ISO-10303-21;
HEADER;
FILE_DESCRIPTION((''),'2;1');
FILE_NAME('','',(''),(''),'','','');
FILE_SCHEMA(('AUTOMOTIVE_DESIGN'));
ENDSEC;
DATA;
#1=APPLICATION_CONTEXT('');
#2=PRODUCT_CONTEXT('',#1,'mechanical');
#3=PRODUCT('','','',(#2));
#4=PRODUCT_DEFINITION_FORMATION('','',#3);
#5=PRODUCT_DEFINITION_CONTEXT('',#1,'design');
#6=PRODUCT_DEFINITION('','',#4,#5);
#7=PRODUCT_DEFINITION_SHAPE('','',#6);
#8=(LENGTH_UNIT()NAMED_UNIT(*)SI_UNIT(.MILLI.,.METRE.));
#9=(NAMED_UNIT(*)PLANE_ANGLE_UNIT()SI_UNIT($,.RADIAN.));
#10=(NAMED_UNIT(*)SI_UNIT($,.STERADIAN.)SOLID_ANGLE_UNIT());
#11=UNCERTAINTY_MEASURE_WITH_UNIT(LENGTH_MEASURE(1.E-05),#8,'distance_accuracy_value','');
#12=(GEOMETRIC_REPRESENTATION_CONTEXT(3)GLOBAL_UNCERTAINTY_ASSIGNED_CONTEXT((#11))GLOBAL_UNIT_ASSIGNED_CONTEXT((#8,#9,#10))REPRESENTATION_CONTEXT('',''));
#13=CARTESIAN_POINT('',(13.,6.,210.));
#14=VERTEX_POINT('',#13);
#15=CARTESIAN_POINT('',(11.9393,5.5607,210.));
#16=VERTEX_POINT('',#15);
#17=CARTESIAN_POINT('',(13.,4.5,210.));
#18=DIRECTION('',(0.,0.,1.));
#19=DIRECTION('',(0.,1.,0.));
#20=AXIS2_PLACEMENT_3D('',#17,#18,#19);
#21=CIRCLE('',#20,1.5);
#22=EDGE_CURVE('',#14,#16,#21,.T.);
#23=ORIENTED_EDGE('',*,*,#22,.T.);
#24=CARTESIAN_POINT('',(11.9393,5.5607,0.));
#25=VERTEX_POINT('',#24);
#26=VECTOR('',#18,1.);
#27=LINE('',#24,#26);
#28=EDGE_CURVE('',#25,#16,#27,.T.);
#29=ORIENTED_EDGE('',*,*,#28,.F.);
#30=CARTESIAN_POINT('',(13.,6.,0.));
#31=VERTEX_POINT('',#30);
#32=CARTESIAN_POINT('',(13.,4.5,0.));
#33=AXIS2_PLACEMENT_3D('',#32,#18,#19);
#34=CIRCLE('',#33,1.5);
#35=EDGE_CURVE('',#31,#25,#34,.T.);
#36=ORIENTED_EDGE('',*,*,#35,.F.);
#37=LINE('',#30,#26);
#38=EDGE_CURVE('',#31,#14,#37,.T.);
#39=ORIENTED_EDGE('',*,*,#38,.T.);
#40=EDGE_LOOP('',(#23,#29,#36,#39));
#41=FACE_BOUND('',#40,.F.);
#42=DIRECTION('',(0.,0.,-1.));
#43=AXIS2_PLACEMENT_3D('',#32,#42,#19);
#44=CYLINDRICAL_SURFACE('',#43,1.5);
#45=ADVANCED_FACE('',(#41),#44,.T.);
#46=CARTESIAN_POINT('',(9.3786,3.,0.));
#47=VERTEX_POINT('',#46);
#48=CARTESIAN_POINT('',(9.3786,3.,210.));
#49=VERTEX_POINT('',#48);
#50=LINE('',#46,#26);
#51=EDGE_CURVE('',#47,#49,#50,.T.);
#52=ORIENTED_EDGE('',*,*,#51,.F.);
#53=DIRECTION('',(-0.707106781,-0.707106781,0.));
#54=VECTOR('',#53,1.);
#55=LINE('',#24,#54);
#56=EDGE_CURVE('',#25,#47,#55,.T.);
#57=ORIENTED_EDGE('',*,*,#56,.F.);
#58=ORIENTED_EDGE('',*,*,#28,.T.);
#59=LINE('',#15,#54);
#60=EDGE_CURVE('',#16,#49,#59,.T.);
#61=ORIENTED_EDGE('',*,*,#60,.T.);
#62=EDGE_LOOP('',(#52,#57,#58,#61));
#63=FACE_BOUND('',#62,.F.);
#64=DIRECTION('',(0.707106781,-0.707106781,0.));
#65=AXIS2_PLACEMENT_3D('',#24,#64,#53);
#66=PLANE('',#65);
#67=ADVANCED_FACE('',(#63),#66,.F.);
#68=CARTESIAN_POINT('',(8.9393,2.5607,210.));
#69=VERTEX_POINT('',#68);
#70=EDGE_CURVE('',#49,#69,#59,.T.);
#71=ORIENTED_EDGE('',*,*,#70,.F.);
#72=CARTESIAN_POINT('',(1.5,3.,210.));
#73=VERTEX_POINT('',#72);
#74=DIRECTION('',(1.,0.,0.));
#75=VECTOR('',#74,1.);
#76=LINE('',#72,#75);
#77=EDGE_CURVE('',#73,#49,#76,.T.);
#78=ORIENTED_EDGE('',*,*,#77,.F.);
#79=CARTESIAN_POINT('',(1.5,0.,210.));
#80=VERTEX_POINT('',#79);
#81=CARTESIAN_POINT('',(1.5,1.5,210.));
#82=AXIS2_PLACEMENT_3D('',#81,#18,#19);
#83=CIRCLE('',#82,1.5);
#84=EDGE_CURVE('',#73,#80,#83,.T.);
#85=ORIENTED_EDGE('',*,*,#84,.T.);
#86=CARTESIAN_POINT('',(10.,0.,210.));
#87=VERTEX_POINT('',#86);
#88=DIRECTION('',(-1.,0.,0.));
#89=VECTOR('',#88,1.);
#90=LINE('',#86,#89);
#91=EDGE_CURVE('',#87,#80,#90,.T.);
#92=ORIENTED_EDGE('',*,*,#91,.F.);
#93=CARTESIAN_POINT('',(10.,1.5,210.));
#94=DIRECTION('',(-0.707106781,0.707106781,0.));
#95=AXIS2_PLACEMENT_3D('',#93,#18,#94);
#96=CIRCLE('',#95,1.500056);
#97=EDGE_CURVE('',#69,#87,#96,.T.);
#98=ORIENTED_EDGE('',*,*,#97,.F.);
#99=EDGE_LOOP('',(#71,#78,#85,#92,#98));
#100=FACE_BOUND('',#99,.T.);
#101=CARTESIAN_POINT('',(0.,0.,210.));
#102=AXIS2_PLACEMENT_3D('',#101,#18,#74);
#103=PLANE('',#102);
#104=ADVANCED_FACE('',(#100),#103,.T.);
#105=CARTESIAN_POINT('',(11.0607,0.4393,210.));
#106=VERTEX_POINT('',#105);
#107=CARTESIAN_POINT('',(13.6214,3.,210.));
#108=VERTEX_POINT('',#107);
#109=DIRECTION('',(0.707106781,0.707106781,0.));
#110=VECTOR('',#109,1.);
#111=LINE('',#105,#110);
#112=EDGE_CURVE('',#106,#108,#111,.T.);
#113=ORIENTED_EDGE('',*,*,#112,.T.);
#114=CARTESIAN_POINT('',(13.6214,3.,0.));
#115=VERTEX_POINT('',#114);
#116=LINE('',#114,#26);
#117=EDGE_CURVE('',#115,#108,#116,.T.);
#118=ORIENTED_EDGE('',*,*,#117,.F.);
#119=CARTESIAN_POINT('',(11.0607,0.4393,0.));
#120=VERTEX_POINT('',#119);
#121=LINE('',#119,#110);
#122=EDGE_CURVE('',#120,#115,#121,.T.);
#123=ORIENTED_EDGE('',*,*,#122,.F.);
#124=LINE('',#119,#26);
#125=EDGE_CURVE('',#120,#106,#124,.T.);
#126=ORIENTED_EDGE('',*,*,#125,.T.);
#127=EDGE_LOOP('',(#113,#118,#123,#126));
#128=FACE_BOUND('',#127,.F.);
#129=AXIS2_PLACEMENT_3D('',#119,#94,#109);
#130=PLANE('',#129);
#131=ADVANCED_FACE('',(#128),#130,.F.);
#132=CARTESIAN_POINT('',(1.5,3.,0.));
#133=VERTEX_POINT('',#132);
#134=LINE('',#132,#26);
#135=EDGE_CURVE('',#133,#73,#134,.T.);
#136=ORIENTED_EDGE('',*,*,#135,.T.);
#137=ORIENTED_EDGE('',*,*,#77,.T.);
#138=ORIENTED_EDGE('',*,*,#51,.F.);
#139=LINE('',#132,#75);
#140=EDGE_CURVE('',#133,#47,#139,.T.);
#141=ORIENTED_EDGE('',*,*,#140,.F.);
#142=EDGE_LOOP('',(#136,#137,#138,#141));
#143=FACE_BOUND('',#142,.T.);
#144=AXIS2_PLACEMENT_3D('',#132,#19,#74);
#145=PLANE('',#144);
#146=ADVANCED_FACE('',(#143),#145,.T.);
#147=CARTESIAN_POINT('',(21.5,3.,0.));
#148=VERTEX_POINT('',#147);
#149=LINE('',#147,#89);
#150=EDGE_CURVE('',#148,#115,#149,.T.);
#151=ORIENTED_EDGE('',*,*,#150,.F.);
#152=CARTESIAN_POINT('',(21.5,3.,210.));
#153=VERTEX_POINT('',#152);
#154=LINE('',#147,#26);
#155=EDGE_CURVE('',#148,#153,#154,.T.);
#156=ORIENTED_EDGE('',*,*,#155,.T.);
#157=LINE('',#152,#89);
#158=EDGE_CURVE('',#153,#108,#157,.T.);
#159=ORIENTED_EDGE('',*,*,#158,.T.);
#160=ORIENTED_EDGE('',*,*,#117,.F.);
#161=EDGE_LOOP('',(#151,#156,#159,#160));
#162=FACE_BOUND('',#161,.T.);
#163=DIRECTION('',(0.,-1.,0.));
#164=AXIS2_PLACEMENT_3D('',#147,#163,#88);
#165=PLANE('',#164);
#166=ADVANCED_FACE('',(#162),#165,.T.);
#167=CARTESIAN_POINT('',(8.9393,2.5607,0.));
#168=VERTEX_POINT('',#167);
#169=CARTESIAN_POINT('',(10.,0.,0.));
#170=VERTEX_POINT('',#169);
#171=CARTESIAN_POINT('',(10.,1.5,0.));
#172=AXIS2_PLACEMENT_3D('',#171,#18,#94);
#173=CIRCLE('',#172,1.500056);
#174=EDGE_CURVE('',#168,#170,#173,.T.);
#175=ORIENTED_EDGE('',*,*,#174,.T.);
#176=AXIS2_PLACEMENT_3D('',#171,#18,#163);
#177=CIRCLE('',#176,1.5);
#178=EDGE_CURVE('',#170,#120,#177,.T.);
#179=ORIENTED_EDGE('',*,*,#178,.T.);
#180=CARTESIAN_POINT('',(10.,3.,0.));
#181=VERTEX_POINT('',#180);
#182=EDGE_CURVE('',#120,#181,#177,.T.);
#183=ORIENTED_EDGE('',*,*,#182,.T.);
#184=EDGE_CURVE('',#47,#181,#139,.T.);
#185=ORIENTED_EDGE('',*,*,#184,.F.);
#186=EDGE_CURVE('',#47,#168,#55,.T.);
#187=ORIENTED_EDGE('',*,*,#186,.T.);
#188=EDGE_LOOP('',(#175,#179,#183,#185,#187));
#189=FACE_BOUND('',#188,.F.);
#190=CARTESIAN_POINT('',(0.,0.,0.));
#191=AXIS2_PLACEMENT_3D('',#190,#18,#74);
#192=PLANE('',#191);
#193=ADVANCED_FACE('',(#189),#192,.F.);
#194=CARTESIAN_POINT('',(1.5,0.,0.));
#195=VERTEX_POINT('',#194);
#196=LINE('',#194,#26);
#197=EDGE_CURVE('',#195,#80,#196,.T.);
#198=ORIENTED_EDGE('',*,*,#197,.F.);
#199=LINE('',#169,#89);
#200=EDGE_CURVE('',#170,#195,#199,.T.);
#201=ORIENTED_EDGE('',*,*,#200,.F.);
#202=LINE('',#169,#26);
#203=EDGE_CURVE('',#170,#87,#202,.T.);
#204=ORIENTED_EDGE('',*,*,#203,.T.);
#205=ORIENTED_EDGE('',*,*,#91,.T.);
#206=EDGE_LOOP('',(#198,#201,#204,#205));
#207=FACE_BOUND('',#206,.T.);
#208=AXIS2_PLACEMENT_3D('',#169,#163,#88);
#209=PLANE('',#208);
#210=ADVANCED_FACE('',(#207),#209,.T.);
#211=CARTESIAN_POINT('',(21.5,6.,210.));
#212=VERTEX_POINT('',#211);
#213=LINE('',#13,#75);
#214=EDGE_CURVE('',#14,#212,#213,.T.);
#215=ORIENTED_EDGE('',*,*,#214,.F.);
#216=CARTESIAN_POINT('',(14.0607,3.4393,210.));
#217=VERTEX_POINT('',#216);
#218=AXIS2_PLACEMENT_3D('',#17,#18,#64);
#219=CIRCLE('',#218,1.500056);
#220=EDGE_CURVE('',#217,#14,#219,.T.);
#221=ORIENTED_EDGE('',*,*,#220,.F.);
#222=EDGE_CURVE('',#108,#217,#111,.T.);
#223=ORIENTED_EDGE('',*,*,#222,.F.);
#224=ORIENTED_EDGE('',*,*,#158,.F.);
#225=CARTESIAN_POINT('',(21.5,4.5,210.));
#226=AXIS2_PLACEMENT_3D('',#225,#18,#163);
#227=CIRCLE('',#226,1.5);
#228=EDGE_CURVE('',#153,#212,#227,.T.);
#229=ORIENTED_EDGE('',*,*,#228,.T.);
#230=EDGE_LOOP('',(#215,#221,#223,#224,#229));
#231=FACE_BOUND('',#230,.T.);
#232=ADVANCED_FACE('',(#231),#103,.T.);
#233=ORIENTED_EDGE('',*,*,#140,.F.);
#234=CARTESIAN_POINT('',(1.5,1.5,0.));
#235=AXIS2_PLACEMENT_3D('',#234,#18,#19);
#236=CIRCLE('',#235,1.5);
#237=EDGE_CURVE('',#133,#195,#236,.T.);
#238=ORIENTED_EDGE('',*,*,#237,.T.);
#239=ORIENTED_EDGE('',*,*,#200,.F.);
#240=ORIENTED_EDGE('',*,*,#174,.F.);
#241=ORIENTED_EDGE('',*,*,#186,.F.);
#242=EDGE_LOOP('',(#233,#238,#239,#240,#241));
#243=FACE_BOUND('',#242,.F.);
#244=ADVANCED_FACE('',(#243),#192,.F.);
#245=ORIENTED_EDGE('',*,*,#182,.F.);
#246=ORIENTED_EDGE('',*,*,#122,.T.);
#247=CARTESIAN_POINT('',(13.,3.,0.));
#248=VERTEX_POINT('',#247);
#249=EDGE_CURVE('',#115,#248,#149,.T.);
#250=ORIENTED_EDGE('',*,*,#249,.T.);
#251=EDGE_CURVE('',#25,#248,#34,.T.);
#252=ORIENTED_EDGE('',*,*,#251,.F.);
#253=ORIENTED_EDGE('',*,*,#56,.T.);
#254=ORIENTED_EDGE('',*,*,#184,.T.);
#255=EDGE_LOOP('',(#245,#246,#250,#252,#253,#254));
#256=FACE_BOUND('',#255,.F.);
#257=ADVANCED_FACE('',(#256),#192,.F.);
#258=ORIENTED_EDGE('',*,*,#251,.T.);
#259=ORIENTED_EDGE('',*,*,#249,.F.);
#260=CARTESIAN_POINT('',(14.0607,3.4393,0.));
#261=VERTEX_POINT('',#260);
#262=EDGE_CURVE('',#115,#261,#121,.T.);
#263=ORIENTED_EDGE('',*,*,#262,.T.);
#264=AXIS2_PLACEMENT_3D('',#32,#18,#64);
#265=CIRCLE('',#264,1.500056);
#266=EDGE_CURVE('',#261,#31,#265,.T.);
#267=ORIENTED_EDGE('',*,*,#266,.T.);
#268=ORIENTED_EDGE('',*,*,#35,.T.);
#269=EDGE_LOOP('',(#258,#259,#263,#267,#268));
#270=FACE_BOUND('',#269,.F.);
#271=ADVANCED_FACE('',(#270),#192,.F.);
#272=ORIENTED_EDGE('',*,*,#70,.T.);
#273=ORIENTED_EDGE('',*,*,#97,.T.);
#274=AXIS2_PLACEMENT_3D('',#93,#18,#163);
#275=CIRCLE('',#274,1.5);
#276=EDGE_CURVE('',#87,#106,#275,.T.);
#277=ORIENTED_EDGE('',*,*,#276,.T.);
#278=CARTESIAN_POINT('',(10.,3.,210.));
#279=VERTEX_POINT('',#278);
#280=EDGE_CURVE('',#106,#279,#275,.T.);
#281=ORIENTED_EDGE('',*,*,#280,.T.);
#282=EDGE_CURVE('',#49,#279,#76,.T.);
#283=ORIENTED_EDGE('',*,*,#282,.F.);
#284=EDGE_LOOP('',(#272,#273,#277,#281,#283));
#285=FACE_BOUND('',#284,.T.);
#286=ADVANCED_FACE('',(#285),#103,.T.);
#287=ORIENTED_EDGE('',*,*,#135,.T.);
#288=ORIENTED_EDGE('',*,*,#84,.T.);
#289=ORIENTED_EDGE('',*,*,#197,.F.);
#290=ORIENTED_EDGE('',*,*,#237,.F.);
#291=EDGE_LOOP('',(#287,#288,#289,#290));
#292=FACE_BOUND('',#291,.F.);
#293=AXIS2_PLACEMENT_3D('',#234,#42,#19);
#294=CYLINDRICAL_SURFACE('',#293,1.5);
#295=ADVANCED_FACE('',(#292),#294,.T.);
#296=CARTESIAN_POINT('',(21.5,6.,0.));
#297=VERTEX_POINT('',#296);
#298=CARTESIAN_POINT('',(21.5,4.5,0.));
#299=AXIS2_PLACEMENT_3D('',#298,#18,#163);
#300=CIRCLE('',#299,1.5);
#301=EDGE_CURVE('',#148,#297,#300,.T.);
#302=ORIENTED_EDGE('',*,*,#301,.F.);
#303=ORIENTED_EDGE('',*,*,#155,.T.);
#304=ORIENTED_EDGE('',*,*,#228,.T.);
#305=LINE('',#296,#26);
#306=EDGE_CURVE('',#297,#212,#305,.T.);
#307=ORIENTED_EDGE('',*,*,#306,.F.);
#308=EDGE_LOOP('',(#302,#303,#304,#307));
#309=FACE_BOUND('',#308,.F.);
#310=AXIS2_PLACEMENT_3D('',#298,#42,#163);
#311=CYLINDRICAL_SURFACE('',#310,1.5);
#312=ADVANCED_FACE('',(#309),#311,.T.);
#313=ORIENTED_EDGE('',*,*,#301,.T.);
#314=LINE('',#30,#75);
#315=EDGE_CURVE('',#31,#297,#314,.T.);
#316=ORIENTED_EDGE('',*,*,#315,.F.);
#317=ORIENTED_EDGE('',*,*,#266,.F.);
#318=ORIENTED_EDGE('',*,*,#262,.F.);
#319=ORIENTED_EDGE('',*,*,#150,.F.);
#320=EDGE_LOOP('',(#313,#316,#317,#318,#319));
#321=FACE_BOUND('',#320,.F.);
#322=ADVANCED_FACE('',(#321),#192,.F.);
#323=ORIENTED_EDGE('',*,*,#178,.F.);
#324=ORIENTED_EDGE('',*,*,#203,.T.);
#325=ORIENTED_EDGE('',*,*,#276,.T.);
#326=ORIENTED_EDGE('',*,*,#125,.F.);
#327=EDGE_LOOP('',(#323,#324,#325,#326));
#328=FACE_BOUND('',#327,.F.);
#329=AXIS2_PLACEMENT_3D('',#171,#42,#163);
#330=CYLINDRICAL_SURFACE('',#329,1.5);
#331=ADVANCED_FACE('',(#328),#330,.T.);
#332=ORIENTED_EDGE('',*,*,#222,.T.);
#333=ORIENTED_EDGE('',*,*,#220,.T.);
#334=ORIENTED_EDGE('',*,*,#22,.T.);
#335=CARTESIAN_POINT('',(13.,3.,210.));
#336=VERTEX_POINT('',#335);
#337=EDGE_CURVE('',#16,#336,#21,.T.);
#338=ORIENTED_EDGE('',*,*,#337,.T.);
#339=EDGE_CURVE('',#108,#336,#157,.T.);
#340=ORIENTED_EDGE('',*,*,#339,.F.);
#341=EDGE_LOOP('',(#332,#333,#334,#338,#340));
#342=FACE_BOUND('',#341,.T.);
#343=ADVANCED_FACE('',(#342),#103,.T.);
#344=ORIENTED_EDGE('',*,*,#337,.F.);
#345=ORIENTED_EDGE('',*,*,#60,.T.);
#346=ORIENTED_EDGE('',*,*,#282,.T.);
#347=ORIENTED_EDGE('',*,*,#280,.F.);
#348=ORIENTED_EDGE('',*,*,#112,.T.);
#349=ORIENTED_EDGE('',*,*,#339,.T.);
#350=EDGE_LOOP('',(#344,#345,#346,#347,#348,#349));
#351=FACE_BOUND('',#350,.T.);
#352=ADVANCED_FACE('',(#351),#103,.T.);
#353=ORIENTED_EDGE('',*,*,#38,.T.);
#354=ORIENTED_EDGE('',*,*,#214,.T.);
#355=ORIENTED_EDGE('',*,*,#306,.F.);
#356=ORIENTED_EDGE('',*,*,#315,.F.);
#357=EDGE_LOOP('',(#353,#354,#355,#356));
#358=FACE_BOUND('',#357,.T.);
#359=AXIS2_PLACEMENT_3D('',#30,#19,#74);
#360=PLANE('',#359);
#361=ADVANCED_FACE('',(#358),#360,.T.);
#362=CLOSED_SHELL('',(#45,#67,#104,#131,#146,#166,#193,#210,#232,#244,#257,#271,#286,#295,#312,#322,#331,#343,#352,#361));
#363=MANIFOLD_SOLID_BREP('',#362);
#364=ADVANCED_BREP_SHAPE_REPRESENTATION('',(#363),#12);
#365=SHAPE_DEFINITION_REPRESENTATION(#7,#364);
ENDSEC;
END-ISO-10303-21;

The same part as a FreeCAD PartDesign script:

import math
import FreeCAD as App
import Part
import Sketcher
from FreeCAD import Vector
Q = App.Units.Quantity

doc = App.newDocument("Part")
body = doc.addObject("PartDesign::Body", "Body")

sketch1 = doc.addObject("Sketcher::SketchObject", "Sketch")
body.addObject(sketch1)
sketch1.AttachmentSupport = (doc.XY_Plane, [""])
sketch1.MapMode = "FlatFace"
sketch1.addGeometry([
    Part.LineSegment(Vector(9.4, 3, 0), Vector(1.5, 3, 0)),
    Part.ArcOfCircle(Part.Circle(Vector(1.5, 1.5, 0), Vector(0, 0, 1), 1.5), math.radians(90), math.radians(270)),
    Part.LineSegment(Vector(1.5, 0, 0), Vector(10, 0, 0)),
    Part.ArcOfCircle(Part.Circle(Vector(10, 1.5, 0), Vector(0, 0, 1), 1.5), math.radians(-90), math.radians(-45)),
    Part.LineSegment(Vector(11.1, 0.4, 0), Vector(13.6, 3, 0)),
    Part.LineSegment(Vector(13.6, 3, 0), Vector(21.5, 3, 0)),
    Part.ArcOfCircle(Part.Circle(Vector(21.5, 4.5, 0), Vector(0, 0, 1), 1.5), math.radians(-90), math.radians(90)),
    Part.LineSegment(Vector(21.5, 6, 0), Vector(13, 6, 0)),
    Part.ArcOfCircle(Part.Circle(Vector(13, 4.5, 0), Vector(0, 0, 1), 1.5), math.radians(90), math.radians(135)),
    Part.LineSegment(Vector(11.9, 5.6, 0), Vector(9.4, 3, 0)),
], False)
sketch1.addConstraint([
    Sketcher.Constraint("Tangent", 0, 2, 1, 1),
    Sketcher.Constraint("Tangent", 1, 2, 2, 1),
    Sketcher.Constraint("Tangent", 2, 2, 3, 1),
    Sketcher.Constraint("Tangent", 3, 2, 4, 1),
    Sketcher.Constraint("Coincident", 4, 2, 5, 1),
    Sketcher.Constraint("Tangent", 5, 2, 6, 1),
    Sketcher.Constraint("Tangent", 6, 2, 7, 1),
    Sketcher.Constraint("Tangent", 7, 2, 8, 1),
    Sketcher.Constraint("Tangent", 8, 2, 9, 1),
    Sketcher.Constraint("Coincident", 9, 2, 0, 1),
    Sketcher.Constraint("Horizontal", 0),
    Sketcher.Constraint("Horizontal", 2),
    Sketcher.Constraint("Horizontal", 5),
    Sketcher.Constraint("Horizontal", 7),
    Sketcher.Constraint("Equal", 1, 3),
    Sketcher.Constraint("Equal", 3, 6),
    Sketcher.Constraint("Equal", 6, 8),
    Sketcher.Constraint("PointOnObject", 1, 2, -1),
    Sketcher.Constraint("Parallel", 4, 9),
    Sketcher.Constraint("Horizontal", 0, 2, 4, 2),
    Sketcher.Constraint("Equal", 0, 5),
    Sketcher.Constraint("Radius", 1, Q("1.5 mm")),
    Sketcher.Constraint("DistanceX", 3, 3, 8, 3, Q("3 mm")),
    Sketcher.Constraint("Angle", 4, Q("45 deg")),
    Sketcher.Constraint("DistanceX", 2, 1, 2, 2, Q("8.5 mm")),
    Sketcher.Constraint("DistanceX", -1, 1, 3, 3, Q("10 mm")),
])
pad1 = doc.addObject("PartDesign::Pad", "Pad")
body.addObject(pad1)
pad1.Profile = sketch1
pad1.Length = 210

doc.recompute()
